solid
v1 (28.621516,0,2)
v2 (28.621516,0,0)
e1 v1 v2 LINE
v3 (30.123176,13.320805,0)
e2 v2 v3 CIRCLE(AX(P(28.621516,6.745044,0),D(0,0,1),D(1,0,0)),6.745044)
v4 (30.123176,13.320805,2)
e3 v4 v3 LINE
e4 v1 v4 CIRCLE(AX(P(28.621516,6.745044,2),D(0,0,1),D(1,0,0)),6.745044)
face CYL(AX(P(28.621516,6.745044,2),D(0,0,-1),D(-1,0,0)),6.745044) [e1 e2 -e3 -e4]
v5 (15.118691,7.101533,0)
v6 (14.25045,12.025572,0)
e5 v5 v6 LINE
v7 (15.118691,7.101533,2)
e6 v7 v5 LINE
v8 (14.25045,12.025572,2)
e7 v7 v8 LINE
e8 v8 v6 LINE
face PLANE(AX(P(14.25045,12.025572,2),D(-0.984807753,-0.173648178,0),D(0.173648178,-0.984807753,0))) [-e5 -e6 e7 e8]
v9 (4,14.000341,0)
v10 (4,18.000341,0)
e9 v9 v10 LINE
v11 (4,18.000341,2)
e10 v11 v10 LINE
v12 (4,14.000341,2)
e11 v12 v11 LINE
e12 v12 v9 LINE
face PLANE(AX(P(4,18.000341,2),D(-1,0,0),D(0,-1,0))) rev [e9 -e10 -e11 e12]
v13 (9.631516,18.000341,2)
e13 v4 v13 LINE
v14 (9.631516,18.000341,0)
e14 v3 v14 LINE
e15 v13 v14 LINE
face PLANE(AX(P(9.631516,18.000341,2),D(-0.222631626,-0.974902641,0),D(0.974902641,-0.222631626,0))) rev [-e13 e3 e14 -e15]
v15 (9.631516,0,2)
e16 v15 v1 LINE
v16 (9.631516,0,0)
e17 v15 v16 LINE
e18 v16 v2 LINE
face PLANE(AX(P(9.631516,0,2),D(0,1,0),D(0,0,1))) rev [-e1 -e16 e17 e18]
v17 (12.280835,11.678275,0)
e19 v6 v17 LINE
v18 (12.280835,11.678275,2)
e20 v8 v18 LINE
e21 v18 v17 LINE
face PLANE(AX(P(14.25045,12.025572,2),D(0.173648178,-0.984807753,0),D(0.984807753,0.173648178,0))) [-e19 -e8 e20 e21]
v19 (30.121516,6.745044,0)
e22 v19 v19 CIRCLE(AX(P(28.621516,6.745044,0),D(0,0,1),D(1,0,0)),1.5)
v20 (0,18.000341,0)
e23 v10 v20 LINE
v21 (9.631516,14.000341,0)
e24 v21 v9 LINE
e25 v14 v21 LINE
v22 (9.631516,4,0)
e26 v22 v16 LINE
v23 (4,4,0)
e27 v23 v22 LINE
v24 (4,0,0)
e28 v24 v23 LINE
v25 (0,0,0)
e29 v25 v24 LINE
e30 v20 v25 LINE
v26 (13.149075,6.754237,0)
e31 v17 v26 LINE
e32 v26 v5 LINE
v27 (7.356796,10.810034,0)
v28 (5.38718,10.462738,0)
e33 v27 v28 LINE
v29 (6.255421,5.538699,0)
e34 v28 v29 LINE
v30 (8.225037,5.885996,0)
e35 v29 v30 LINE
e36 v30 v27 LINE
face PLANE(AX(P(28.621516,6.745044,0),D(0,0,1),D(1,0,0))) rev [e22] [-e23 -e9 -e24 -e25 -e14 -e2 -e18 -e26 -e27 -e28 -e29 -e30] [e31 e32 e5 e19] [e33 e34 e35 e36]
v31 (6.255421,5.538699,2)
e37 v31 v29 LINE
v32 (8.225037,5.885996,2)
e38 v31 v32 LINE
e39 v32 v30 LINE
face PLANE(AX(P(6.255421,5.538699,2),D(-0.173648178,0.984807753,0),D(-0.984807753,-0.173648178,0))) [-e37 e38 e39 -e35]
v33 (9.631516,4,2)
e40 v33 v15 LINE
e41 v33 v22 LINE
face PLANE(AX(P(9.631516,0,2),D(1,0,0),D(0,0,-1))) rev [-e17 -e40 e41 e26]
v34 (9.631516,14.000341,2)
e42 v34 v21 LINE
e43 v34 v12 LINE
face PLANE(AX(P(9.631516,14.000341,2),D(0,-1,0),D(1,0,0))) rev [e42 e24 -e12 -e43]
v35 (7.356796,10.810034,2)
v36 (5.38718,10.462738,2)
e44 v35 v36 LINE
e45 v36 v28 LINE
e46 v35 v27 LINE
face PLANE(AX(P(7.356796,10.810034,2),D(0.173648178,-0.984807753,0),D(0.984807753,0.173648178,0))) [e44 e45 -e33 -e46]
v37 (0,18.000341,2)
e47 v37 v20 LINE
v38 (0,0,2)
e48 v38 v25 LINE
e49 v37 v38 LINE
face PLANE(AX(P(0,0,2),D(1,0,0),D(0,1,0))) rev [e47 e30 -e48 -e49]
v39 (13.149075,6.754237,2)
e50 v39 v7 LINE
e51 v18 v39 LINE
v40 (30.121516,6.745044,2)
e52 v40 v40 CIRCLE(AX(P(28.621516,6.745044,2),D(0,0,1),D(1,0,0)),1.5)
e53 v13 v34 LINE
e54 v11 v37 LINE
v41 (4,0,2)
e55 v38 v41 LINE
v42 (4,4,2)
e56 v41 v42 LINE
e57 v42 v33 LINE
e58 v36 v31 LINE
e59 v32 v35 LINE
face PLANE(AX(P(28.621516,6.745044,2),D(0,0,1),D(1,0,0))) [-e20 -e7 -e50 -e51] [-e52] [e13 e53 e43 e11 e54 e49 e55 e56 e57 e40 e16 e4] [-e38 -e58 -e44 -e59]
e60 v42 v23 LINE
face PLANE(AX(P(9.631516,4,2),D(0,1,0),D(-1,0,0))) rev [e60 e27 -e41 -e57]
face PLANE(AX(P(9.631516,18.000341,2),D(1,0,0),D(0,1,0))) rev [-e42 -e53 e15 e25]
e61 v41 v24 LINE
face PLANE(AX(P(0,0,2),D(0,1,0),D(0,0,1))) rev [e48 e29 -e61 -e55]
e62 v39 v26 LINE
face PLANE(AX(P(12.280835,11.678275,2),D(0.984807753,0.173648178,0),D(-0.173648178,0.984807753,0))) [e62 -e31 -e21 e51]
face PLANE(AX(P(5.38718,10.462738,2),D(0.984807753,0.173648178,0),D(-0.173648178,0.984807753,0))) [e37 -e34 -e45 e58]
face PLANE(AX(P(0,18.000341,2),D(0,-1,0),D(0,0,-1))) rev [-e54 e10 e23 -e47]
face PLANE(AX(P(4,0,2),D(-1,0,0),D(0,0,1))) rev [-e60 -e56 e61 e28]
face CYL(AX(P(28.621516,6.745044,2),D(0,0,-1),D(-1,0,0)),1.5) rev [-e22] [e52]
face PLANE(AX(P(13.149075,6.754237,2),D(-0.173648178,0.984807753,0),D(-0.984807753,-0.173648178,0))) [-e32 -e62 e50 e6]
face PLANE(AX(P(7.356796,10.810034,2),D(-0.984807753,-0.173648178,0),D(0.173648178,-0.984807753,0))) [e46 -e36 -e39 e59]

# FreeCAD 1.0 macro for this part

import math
import FreeCAD as App
import Part
import Sketcher

V = App.Vector
Q = App.Units.Quantity


def add_polygon(sketch, points):
    """Adds a closed chain of lines whose ends are joined by coincident constraints."""
    first, n = sketch.GeometryCount, len(points)
    for a, b in zip(points, points[1:] + points[:1]):
        sketch.addGeometry(Part.LineSegment(App.Vector(*a, 0), App.Vector(*b, 0)), False)
    for i in range(n):
        sketch.addConstraint(Sketcher.Constraint("Coincident", first + i, 2, first + (i + 1) % n, 1))

doc = App.newDocument("Part")
body = doc.addObject("PartDesign::Body", "Body")

# Sketch on XY plane
sketch1 = doc.addObject("Sketcher::SketchObject", "Sketch")
body.addObject(sketch1)
sketch1.AttachmentSupport = (doc.XY_Plane, [""])
sketch1.MapMode = "FlatFace"
sketch1.addGeometry(Part.LineSegment(V(0, 18, 0), V(0, 0, 0)), False)  # 0
sketch1.addGeometry(Part.LineSegment(V(0, 0, 0), V(4, 0, 0)), False)  # 1
sketch1.addGeometry(Part.LineSegment(V(4, 0, 0), V(4, 4, 0)), False)  # 2
sketch1.addGeometry(Part.LineSegment(V(4, 4, 0), V(9.6, 4, 0)), False)  # 3
sketch1.addGeometry(Part.LineSegment(V(9.6, 4, 0), V(9.6, 0, 0)), False)  # 4
sketch1.addGeometry(Part.LineSegment(V(9.6, 0, 0), V(28.6, 0, 0)), False)  # 5
sketch1.addGeometry(Part.ArcOfCircle(Part.Circle(V(28.6, 6.7, 0), V(0, 0, 1), 6.7), math.radians(-90), math.radians(77)), False)  # 6
sketch1.addGeometry(Part.LineSegment(V(30.1, 13.3, 0), V(9.6, 18, 0)), False)  # 7
sketch1.addGeometry(Part.LineSegment(V(9.6, 18, 0), V(9.6, 14, 0)), False)  # 8
sketch1.addGeometry(Part.LineSegment(V(9.6, 14, 0), V(4, 14, 0)), False)  # 9
sketch1.addGeometry(Part.LineSegment(V(4, 14, 0), V(4, 18, 0)), False)  # 10
sketch1.addGeometry(Part.LineSegment(V(4, 18, 0), V(0, 18, 0)), False)  # 11
sketch1.addGeometry(Part.Circle(V(28.6, 6.7, 0), V(0, 0, 1), 1.5), False)  # 12
add_polygon(sketch1, [(7.4, 10.8), (8.2, 5.9), (6.3, 5.5), (5.4, 10.5)])  # lines 13-16
add_polygon(sketch1, [(14.3, 12), (15.1, 7.1), (13.1, 6.8), (12.3, 11.7)])  # lines 17-20
sketch1.addConstraint([
    Sketcher.Constraint("Coincident", 0, 2, 1, 1),
    Sketcher.Constraint("Coincident", 1, 2, 2, 1),
    Sketcher.Constraint("Coincident", 2, 2, 3, 1),
    Sketcher.Constraint("Coincident", 3, 2, 4, 1),
    Sketcher.Constraint("Coincident", 4, 2, 5, 1),
    Sketcher.Constraint("Tangent", 5, 2, 6, 1),
    Sketcher.Constraint("Tangent", 6, 2, 7, 1),
    Sketcher.Constraint("Coincident", 7, 2, 8, 1),
    Sketcher.Constraint("Coincident", 8, 2, 9, 1),
    Sketcher.Constraint("Coincident", 9, 2, 10, 1),
    Sketcher.Constraint("Coincident", 10, 2, 11, 1),
    Sketcher.Constraint("Coincident", 11, 2, 0, 1),
    Sketcher.Constraint("Vertical", 0),
    Sketcher.Constraint("Horizontal", 1),
    Sketcher.Constraint("Vertical", 2),
    Sketcher.Constraint("Horizontal", 3),
    Sketcher.Constraint("Vertical", 4),
    Sketcher.Constraint("Horizontal", 5),
    Sketcher.Constraint("Vertical", 8),
    Sketcher.Constraint("Horizontal", 9),
    Sketcher.Constraint("Vertical", 10),
    Sketcher.Constraint("Horizontal", 11),
    Sketcher.Constraint("Coincident", 0, 2, -1, 1),
    Sketcher.Constraint("Coincident", 12, 3, 6, 3),
    Sketcher.Constraint("PointOnObject", 4, 2, -1),
    Sketcher.Constraint("Perpendicular", 13, 14),
    Sketcher.Constraint("Perpendicular", 14, 15),
    Sketcher.Constraint("Perpendicular", 15, 16),
    Sketcher.Constraint("Perpendicular", 16, 17),
    Sketcher.Constraint("Perpendicular", 17, 18),
    Sketcher.Constraint("Perpendicular", 18, 19),
    Sketcher.Constraint("Perpendicular", 19, 20),
    Sketcher.Constraint("Horizontal", 7, 2, 10, 2),
    Sketcher.Constraint("Vertical", 4, 2, 7, 2),
    Sketcher.Constraint("Vertical", 2, 2, 9, 2),
    Sketcher.Constraint("Equal", 11, 2),
    Sketcher.Constraint("Equal", 4, 8),
    Sketcher.Constraint("Equal", 15, 17),
    Sketcher.Constraint("Equal", 16, 18),
    Sketcher.Constraint("Diameter", 12, Q("3 mm")),
    Sketcher.Constraint("DistanceX", 1, 1, 1, 2, Q("4 mm")),
    Sketcher.Constraint("Angle", 13, Q("-80 deg")),
    Sketcher.Constraint("Distance", 13, Q("5 mm")),
    Sketcher.Constraint("Distance", 14, Q("2 mm")),
    Sketcher.Constraint("DistanceX", 5, 1, 5, 2, Q("18.99 mm")),
    Sketcher.Constraint("Radius", 6, Q("6.745044 mm")),
    Sketcher.Constraint("DistanceY", 0, 2, 0, 1, Q("18.000341 mm")),
    Sketcher.Constraint("DistanceY", -1, 1, 14, 2, Q("5.538699 mm")),
    Sketcher.Constraint("DistanceY", 17, 2, 16, 2, Q("3.708502 mm")),
    Sketcher.Constraint("DistanceX", 3, 1, 3, 2, Q("5.631516 mm")),
    Sketcher.Constraint("DistanceX", -1, 1, 14, 2, Q("6.255421 mm")),
    Sketcher.Constraint("DistanceX", -1, 1, 17, 2, Q("15.118691 mm")),
])
pad1 = doc.addObject("PartDesign::Pad", "Pad")
body.addObject(pad1)
pad1.Profile = sketch1
pad1.Length = 2

doc.recompute()
